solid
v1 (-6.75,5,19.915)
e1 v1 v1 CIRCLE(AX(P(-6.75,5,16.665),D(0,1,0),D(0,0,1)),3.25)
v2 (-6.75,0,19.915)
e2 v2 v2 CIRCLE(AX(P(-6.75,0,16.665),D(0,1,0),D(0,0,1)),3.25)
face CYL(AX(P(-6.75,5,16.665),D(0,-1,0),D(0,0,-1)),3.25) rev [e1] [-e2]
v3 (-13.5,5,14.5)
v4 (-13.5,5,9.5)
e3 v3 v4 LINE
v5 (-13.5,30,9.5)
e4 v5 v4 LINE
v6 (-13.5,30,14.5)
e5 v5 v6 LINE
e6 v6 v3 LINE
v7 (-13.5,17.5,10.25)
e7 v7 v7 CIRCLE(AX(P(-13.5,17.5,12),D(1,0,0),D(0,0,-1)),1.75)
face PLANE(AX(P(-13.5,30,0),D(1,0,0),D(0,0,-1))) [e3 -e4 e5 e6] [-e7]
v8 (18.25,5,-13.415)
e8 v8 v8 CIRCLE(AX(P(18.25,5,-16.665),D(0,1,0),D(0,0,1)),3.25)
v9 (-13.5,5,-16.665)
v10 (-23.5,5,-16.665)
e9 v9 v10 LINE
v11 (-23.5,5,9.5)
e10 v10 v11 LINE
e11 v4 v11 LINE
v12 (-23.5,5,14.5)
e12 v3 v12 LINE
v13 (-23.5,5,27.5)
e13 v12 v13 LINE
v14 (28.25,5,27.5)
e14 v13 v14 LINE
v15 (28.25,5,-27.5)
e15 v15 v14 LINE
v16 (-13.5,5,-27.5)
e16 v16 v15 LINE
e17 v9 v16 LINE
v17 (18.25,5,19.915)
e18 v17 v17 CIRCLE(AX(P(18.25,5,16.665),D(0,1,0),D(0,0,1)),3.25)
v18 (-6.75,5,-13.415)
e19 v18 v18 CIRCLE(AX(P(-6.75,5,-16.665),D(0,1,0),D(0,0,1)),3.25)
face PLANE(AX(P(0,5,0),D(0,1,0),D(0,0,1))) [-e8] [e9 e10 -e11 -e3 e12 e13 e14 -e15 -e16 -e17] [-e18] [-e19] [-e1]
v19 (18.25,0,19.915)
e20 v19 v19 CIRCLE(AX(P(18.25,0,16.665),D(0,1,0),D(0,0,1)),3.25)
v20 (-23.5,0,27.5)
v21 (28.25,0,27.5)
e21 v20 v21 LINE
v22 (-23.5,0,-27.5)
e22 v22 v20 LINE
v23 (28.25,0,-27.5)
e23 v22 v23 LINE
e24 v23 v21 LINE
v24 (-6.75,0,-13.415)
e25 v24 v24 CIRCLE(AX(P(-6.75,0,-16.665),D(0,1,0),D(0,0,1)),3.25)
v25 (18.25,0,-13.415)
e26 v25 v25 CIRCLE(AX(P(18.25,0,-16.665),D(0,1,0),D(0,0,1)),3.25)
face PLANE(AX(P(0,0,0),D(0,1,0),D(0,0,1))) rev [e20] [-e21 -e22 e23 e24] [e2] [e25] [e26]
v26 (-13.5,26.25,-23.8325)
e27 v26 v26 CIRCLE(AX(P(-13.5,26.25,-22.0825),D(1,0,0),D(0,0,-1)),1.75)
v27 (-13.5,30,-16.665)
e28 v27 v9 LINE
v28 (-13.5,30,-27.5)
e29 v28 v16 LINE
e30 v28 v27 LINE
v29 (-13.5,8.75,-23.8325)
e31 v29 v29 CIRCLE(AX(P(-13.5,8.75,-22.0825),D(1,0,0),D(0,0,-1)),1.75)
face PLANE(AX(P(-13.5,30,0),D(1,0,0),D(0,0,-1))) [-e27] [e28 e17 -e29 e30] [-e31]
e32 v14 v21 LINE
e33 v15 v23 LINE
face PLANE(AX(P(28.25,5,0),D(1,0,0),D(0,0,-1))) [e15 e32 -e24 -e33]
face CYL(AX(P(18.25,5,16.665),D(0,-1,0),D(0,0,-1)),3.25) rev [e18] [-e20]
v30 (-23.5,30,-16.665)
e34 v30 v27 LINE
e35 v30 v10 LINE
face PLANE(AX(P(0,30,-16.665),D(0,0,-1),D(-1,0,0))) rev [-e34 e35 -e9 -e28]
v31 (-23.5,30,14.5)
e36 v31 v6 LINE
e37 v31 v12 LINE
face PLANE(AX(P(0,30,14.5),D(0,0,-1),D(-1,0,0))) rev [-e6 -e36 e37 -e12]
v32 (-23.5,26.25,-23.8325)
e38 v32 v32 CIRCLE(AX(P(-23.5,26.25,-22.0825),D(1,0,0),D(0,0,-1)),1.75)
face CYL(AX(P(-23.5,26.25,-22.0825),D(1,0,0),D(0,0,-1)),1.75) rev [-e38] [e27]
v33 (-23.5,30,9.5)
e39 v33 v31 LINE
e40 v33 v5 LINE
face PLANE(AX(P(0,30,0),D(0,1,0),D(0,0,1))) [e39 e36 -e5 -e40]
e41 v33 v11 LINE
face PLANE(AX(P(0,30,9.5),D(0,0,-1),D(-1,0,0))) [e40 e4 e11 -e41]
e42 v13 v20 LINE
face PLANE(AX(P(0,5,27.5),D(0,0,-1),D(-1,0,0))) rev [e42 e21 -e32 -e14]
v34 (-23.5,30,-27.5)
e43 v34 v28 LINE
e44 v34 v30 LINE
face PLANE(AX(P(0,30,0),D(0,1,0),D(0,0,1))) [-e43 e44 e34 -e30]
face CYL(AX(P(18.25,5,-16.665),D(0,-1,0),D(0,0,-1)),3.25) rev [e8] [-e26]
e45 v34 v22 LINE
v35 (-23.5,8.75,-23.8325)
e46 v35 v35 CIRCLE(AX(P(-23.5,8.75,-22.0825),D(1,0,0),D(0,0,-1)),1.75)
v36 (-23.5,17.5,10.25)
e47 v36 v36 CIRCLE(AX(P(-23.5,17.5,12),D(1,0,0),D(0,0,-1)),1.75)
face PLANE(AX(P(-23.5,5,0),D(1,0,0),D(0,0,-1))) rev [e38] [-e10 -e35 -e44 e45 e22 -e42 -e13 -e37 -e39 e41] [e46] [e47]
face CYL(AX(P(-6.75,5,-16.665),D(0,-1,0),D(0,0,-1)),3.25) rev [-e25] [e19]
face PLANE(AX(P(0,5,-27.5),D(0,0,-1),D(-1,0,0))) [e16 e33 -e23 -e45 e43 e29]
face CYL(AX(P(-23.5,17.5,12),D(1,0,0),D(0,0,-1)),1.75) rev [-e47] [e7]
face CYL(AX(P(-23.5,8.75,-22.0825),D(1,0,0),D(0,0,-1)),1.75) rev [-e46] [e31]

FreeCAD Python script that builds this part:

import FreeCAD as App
import Part
import Sketcher

V = App.Vector
Q = App.Units.Quantity


def add_polygon(sketch, points):
    """Adds a closed chain of lines whose ends are joined by coincident constraints."""
    first, n = sketch.GeometryCount, len(points)
    for a, b in zip(points, points[1:] + points[:1]):
        sketch.addGeometry(Part.LineSegment(App.Vector(*a, 0), App.Vector(*b, 0)), False)
    for i in range(n):
        sketch.addConstraint(Sketcher.Constraint("Coincident", first + i, 2, first + (i + 1) % n, 1))

doc = App.newDocument("Part")
body = doc.addObject("PartDesign::Body", "Body")

# Sketch on XZ plane
sketch1 = body.newObject("Sketcher::SketchObject", "Sketch")
sketch1.AttachmentSupport = (doc.getObject("XZ_Plane"), [""])
sketch1.MapMode = "FlatFace"
add_polygon(sketch1, [(28.2, -27.5), (-23.5, -27.5), (-23.5, 27.5), (28.2, 27.5)])  # lines 0-3
sketch1.addGeometry(Part.Circle(V(-6.8, 16.7, 0), V(0, 0, 1), 3.2), False)  # 4
sketch1.addGeometry(Part.Circle(V(18.2, 16.7, 0), V(0, 0, 1), 3.2), False)  # 5
sketch1.addGeometry(Part.Circle(V(-6.8, -16.7, 0), V(0, 0, 1), 3.2), False)  # 6
sketch1.addGeometry(Part.Circle(V(18.2, -16.7, 0), V(0, 0, 1), 3.2), False)  # 7
sketch1.addConstraint(Sketcher.Constraint("Horizontal", 0))
sketch1.addConstraint(Sketcher.Constraint("Vertical", 1))
sketch1.addConstraint(Sketcher.Constraint("Horizontal", 2))
sketch1.addConstraint(Sketcher.Constraint("Vertical", 3))
sketch1.addConstraint(Sketcher.Constraint("Equal", 4, 5))
sketch1.addConstraint(Sketcher.Constraint("Equal", 5, 6))
sketch1.addConstraint(Sketcher.Constraint("Equal", 6, 7))
sketch1.addConstraint(Sketcher.Constraint("Symmetric", 4, 3, 6, 3, -1))
sketch1.addConstraint(Sketcher.Constraint("Symmetric", 5, 3, 7, 3, -1))
sketch1.addConstraint(Sketcher.Constraint("Horizontal", 4, 3, 5, 3))
sketch1.addConstraint(Sketcher.Constraint("Diameter", 4, Q("6.5 mm")))
sketch1.addConstraint(Sketcher.Constraint("DistanceY", 1, 1, 1, 2, Q("55 mm")))
sketch1.addConstraint(Sketcher.Constraint("DistanceX", 4, 3, 5, 3, Q("25 mm")))
sketch1.addConstraint(Sketcher.Constraint("DistanceX", 5, 3, 2, 2, Q("10 mm")))
sketch1.addConstraint(Sketcher.Constraint("DistanceX", 0, 2, 0, 1, Q("51.75 mm")))
sketch1.addConstraint(Sketcher.Constraint("DistanceX", 0, 2, -1, 1, Q("23.5 mm")))
sketch1.addConstraint(Sketcher.Constraint("DistanceY", 0, 2, -1, 1, Q("27.5 mm")))
sketch1.addConstraint(Sketcher.Constraint("DistanceY", 6, 3, 4, 3, Q("33.33 mm")))
pad1 = body.newObject("PartDesign::Pad", "Pad")
pad1.Profile = sketch1
pad1.Length = 5
pad1.Reversed = True

# Sketch on XZ plane
sketch2 = body.newObject("Sketcher::SketchObject", "Sketch001")
sketch2.AttachmentSupport = (doc.getObject("XZ_Plane"), [""])
sketch2.MapMode = "FlatFace"
add_polygon(sketch2, [(-24, -28), (-24, -17), (-14, -17), (-14, -28)])  # lines 0-3
add_polygon(sketch2, [(-24, 10), (-24, 14), (-14, 14), (-14, 10)])  # lines 4-7
sketch2.addConstraint(Sketcher.Constraint("Vertical", 0))
sketch2.addConstraint(Sketcher.Constraint("Horizontal", 1))
sketch2.addConstraint(Sketcher.Constraint("Vertical", 2))
sketch2.addConstraint(Sketcher.Constraint("Horizontal", 3))
sketch2.addConstraint(Sketcher.Constraint("Vertical", 4))
sketch2.addConstraint(Sketcher.Constraint("Horizontal", 5))
sketch2.addConstraint(Sketcher.Constraint("Vertical", 6))
sketch2.addConstraint(Sketcher.Constraint("Horizontal", 7))
sketch2.addConstraint(Sketcher.Constraint("Vertical", 3, 2, 4, 2))
sketch2.addConstraint(Sketcher.Constraint("Vertical", 2, 2, 5, 2))
sketch2.addConstraint(Sketcher.Constraint("DistanceX", 1, 1, 1, 2, Q("10 mm")))
sketch2.addConstraint(Sketcher.Constraint("DistanceY", 4, 1, 4, 2, Q("5 mm")))
sketch2.addConstraint(Sketcher.Constraint("DistanceY", 3, 2, 4, 2, Q("42 mm")))
sketch2.addConstraint(Sketcher.Constraint("DistanceX", 0, 2, -1, 1, Q("23.5 mm")))
sketch2.addConstraint(Sketcher.Constraint("DistanceY", 2, 2, -1, 1, Q("27.5 mm")))
sketch2.addConstraint(Sketcher.Constraint("DistanceY", 0, 1, 0, 2, Q("10.835 mm")))
pad2 = body.newObject("PartDesign::Pad", "Pad001")
pad2.Profile = sketch2
pad2.Length = 30
pad2.Reversed = True

# Sketch on YZ plane
sketch3 = body.newObject("Sketcher::SketchObject", "Sketch002")
sketch3.AttachmentSupport = (doc.getObject("YZ_Plane"), [""])
sketch3.MapMode = "FlatFace"
sketch3.AttachmentOffset = App.Placement(V(0, 0, -13.5), App.Rotation())
sketch3.addGeometry(Part.Circle(V(26.2, -22.1, 0), V(0, 0, 1), 1.8), False)
sketch3.addGeometry(Part.Circle(V(8.8, -22.1, 0), V(0, 0, 1), 1.8), False)
sketch3.addConstraint(Sketcher.Constraint("Equal", 0, 1))
sketch3.addConstraint(Sketcher.Constraint("Horizontal", 0, 3, 1, 3))
sketch3.addConstraint(Sketcher.Constraint("Diameter", 0, Q("3.5 mm")))
sketch3.addConstraint(Sketcher.Constraint("DistanceX", 1, 3, 0, 3, Q("17.5 mm")))
sketch3.addConstraint(Sketcher.Constraint("DistanceX", -1, 1, 0, 3, Q("26.25 mm")))
sketch3.addConstraint(Sketcher.Constraint("DistanceY", 0, 3, -1, 1, Q("22.0825 mm")))
pocket1 = body.newObject("PartDesign::Pocket", "Pocket")
pocket1.Profile = sketch3
pocket1.Type = "ThroughAll"
pocket1.Midplane = True

# Sketch on YZ plane
sketch4 = body.newObject("Sketcher::SketchObject", "Sketch003")
sketch4.AttachmentSupport = (doc.getObject("YZ_Plane"), [""])
sketch4.MapMode = "FlatFace"
sketch4.AttachmentOffset = App.Placement(V(0, 0, -13.5), App.Rotation())
sketch4.addGeometry(Part.Circle(V(17.5, 12, 0), V(0, 0, 1), 1.8), False)
sketch4.addConstraint(Sketcher.Constraint("Diameter", 0, Q("3.5 mm")))
sketch4.addConstraint(Sketcher.Constraint("DistanceY", -1, 1, 0, 3, Q("12 mm")))
sketch4.addConstraint(Sketcher.Constraint("DistanceX", -1, 1, 0, 3, Q("17.5 mm")))
pocket2 = body.newObject("PartDesign::Pocket", "Pocket001")
pocket2.Profile = sketch4
pocket2.Type = "ThroughAll"

doc.recompute()
